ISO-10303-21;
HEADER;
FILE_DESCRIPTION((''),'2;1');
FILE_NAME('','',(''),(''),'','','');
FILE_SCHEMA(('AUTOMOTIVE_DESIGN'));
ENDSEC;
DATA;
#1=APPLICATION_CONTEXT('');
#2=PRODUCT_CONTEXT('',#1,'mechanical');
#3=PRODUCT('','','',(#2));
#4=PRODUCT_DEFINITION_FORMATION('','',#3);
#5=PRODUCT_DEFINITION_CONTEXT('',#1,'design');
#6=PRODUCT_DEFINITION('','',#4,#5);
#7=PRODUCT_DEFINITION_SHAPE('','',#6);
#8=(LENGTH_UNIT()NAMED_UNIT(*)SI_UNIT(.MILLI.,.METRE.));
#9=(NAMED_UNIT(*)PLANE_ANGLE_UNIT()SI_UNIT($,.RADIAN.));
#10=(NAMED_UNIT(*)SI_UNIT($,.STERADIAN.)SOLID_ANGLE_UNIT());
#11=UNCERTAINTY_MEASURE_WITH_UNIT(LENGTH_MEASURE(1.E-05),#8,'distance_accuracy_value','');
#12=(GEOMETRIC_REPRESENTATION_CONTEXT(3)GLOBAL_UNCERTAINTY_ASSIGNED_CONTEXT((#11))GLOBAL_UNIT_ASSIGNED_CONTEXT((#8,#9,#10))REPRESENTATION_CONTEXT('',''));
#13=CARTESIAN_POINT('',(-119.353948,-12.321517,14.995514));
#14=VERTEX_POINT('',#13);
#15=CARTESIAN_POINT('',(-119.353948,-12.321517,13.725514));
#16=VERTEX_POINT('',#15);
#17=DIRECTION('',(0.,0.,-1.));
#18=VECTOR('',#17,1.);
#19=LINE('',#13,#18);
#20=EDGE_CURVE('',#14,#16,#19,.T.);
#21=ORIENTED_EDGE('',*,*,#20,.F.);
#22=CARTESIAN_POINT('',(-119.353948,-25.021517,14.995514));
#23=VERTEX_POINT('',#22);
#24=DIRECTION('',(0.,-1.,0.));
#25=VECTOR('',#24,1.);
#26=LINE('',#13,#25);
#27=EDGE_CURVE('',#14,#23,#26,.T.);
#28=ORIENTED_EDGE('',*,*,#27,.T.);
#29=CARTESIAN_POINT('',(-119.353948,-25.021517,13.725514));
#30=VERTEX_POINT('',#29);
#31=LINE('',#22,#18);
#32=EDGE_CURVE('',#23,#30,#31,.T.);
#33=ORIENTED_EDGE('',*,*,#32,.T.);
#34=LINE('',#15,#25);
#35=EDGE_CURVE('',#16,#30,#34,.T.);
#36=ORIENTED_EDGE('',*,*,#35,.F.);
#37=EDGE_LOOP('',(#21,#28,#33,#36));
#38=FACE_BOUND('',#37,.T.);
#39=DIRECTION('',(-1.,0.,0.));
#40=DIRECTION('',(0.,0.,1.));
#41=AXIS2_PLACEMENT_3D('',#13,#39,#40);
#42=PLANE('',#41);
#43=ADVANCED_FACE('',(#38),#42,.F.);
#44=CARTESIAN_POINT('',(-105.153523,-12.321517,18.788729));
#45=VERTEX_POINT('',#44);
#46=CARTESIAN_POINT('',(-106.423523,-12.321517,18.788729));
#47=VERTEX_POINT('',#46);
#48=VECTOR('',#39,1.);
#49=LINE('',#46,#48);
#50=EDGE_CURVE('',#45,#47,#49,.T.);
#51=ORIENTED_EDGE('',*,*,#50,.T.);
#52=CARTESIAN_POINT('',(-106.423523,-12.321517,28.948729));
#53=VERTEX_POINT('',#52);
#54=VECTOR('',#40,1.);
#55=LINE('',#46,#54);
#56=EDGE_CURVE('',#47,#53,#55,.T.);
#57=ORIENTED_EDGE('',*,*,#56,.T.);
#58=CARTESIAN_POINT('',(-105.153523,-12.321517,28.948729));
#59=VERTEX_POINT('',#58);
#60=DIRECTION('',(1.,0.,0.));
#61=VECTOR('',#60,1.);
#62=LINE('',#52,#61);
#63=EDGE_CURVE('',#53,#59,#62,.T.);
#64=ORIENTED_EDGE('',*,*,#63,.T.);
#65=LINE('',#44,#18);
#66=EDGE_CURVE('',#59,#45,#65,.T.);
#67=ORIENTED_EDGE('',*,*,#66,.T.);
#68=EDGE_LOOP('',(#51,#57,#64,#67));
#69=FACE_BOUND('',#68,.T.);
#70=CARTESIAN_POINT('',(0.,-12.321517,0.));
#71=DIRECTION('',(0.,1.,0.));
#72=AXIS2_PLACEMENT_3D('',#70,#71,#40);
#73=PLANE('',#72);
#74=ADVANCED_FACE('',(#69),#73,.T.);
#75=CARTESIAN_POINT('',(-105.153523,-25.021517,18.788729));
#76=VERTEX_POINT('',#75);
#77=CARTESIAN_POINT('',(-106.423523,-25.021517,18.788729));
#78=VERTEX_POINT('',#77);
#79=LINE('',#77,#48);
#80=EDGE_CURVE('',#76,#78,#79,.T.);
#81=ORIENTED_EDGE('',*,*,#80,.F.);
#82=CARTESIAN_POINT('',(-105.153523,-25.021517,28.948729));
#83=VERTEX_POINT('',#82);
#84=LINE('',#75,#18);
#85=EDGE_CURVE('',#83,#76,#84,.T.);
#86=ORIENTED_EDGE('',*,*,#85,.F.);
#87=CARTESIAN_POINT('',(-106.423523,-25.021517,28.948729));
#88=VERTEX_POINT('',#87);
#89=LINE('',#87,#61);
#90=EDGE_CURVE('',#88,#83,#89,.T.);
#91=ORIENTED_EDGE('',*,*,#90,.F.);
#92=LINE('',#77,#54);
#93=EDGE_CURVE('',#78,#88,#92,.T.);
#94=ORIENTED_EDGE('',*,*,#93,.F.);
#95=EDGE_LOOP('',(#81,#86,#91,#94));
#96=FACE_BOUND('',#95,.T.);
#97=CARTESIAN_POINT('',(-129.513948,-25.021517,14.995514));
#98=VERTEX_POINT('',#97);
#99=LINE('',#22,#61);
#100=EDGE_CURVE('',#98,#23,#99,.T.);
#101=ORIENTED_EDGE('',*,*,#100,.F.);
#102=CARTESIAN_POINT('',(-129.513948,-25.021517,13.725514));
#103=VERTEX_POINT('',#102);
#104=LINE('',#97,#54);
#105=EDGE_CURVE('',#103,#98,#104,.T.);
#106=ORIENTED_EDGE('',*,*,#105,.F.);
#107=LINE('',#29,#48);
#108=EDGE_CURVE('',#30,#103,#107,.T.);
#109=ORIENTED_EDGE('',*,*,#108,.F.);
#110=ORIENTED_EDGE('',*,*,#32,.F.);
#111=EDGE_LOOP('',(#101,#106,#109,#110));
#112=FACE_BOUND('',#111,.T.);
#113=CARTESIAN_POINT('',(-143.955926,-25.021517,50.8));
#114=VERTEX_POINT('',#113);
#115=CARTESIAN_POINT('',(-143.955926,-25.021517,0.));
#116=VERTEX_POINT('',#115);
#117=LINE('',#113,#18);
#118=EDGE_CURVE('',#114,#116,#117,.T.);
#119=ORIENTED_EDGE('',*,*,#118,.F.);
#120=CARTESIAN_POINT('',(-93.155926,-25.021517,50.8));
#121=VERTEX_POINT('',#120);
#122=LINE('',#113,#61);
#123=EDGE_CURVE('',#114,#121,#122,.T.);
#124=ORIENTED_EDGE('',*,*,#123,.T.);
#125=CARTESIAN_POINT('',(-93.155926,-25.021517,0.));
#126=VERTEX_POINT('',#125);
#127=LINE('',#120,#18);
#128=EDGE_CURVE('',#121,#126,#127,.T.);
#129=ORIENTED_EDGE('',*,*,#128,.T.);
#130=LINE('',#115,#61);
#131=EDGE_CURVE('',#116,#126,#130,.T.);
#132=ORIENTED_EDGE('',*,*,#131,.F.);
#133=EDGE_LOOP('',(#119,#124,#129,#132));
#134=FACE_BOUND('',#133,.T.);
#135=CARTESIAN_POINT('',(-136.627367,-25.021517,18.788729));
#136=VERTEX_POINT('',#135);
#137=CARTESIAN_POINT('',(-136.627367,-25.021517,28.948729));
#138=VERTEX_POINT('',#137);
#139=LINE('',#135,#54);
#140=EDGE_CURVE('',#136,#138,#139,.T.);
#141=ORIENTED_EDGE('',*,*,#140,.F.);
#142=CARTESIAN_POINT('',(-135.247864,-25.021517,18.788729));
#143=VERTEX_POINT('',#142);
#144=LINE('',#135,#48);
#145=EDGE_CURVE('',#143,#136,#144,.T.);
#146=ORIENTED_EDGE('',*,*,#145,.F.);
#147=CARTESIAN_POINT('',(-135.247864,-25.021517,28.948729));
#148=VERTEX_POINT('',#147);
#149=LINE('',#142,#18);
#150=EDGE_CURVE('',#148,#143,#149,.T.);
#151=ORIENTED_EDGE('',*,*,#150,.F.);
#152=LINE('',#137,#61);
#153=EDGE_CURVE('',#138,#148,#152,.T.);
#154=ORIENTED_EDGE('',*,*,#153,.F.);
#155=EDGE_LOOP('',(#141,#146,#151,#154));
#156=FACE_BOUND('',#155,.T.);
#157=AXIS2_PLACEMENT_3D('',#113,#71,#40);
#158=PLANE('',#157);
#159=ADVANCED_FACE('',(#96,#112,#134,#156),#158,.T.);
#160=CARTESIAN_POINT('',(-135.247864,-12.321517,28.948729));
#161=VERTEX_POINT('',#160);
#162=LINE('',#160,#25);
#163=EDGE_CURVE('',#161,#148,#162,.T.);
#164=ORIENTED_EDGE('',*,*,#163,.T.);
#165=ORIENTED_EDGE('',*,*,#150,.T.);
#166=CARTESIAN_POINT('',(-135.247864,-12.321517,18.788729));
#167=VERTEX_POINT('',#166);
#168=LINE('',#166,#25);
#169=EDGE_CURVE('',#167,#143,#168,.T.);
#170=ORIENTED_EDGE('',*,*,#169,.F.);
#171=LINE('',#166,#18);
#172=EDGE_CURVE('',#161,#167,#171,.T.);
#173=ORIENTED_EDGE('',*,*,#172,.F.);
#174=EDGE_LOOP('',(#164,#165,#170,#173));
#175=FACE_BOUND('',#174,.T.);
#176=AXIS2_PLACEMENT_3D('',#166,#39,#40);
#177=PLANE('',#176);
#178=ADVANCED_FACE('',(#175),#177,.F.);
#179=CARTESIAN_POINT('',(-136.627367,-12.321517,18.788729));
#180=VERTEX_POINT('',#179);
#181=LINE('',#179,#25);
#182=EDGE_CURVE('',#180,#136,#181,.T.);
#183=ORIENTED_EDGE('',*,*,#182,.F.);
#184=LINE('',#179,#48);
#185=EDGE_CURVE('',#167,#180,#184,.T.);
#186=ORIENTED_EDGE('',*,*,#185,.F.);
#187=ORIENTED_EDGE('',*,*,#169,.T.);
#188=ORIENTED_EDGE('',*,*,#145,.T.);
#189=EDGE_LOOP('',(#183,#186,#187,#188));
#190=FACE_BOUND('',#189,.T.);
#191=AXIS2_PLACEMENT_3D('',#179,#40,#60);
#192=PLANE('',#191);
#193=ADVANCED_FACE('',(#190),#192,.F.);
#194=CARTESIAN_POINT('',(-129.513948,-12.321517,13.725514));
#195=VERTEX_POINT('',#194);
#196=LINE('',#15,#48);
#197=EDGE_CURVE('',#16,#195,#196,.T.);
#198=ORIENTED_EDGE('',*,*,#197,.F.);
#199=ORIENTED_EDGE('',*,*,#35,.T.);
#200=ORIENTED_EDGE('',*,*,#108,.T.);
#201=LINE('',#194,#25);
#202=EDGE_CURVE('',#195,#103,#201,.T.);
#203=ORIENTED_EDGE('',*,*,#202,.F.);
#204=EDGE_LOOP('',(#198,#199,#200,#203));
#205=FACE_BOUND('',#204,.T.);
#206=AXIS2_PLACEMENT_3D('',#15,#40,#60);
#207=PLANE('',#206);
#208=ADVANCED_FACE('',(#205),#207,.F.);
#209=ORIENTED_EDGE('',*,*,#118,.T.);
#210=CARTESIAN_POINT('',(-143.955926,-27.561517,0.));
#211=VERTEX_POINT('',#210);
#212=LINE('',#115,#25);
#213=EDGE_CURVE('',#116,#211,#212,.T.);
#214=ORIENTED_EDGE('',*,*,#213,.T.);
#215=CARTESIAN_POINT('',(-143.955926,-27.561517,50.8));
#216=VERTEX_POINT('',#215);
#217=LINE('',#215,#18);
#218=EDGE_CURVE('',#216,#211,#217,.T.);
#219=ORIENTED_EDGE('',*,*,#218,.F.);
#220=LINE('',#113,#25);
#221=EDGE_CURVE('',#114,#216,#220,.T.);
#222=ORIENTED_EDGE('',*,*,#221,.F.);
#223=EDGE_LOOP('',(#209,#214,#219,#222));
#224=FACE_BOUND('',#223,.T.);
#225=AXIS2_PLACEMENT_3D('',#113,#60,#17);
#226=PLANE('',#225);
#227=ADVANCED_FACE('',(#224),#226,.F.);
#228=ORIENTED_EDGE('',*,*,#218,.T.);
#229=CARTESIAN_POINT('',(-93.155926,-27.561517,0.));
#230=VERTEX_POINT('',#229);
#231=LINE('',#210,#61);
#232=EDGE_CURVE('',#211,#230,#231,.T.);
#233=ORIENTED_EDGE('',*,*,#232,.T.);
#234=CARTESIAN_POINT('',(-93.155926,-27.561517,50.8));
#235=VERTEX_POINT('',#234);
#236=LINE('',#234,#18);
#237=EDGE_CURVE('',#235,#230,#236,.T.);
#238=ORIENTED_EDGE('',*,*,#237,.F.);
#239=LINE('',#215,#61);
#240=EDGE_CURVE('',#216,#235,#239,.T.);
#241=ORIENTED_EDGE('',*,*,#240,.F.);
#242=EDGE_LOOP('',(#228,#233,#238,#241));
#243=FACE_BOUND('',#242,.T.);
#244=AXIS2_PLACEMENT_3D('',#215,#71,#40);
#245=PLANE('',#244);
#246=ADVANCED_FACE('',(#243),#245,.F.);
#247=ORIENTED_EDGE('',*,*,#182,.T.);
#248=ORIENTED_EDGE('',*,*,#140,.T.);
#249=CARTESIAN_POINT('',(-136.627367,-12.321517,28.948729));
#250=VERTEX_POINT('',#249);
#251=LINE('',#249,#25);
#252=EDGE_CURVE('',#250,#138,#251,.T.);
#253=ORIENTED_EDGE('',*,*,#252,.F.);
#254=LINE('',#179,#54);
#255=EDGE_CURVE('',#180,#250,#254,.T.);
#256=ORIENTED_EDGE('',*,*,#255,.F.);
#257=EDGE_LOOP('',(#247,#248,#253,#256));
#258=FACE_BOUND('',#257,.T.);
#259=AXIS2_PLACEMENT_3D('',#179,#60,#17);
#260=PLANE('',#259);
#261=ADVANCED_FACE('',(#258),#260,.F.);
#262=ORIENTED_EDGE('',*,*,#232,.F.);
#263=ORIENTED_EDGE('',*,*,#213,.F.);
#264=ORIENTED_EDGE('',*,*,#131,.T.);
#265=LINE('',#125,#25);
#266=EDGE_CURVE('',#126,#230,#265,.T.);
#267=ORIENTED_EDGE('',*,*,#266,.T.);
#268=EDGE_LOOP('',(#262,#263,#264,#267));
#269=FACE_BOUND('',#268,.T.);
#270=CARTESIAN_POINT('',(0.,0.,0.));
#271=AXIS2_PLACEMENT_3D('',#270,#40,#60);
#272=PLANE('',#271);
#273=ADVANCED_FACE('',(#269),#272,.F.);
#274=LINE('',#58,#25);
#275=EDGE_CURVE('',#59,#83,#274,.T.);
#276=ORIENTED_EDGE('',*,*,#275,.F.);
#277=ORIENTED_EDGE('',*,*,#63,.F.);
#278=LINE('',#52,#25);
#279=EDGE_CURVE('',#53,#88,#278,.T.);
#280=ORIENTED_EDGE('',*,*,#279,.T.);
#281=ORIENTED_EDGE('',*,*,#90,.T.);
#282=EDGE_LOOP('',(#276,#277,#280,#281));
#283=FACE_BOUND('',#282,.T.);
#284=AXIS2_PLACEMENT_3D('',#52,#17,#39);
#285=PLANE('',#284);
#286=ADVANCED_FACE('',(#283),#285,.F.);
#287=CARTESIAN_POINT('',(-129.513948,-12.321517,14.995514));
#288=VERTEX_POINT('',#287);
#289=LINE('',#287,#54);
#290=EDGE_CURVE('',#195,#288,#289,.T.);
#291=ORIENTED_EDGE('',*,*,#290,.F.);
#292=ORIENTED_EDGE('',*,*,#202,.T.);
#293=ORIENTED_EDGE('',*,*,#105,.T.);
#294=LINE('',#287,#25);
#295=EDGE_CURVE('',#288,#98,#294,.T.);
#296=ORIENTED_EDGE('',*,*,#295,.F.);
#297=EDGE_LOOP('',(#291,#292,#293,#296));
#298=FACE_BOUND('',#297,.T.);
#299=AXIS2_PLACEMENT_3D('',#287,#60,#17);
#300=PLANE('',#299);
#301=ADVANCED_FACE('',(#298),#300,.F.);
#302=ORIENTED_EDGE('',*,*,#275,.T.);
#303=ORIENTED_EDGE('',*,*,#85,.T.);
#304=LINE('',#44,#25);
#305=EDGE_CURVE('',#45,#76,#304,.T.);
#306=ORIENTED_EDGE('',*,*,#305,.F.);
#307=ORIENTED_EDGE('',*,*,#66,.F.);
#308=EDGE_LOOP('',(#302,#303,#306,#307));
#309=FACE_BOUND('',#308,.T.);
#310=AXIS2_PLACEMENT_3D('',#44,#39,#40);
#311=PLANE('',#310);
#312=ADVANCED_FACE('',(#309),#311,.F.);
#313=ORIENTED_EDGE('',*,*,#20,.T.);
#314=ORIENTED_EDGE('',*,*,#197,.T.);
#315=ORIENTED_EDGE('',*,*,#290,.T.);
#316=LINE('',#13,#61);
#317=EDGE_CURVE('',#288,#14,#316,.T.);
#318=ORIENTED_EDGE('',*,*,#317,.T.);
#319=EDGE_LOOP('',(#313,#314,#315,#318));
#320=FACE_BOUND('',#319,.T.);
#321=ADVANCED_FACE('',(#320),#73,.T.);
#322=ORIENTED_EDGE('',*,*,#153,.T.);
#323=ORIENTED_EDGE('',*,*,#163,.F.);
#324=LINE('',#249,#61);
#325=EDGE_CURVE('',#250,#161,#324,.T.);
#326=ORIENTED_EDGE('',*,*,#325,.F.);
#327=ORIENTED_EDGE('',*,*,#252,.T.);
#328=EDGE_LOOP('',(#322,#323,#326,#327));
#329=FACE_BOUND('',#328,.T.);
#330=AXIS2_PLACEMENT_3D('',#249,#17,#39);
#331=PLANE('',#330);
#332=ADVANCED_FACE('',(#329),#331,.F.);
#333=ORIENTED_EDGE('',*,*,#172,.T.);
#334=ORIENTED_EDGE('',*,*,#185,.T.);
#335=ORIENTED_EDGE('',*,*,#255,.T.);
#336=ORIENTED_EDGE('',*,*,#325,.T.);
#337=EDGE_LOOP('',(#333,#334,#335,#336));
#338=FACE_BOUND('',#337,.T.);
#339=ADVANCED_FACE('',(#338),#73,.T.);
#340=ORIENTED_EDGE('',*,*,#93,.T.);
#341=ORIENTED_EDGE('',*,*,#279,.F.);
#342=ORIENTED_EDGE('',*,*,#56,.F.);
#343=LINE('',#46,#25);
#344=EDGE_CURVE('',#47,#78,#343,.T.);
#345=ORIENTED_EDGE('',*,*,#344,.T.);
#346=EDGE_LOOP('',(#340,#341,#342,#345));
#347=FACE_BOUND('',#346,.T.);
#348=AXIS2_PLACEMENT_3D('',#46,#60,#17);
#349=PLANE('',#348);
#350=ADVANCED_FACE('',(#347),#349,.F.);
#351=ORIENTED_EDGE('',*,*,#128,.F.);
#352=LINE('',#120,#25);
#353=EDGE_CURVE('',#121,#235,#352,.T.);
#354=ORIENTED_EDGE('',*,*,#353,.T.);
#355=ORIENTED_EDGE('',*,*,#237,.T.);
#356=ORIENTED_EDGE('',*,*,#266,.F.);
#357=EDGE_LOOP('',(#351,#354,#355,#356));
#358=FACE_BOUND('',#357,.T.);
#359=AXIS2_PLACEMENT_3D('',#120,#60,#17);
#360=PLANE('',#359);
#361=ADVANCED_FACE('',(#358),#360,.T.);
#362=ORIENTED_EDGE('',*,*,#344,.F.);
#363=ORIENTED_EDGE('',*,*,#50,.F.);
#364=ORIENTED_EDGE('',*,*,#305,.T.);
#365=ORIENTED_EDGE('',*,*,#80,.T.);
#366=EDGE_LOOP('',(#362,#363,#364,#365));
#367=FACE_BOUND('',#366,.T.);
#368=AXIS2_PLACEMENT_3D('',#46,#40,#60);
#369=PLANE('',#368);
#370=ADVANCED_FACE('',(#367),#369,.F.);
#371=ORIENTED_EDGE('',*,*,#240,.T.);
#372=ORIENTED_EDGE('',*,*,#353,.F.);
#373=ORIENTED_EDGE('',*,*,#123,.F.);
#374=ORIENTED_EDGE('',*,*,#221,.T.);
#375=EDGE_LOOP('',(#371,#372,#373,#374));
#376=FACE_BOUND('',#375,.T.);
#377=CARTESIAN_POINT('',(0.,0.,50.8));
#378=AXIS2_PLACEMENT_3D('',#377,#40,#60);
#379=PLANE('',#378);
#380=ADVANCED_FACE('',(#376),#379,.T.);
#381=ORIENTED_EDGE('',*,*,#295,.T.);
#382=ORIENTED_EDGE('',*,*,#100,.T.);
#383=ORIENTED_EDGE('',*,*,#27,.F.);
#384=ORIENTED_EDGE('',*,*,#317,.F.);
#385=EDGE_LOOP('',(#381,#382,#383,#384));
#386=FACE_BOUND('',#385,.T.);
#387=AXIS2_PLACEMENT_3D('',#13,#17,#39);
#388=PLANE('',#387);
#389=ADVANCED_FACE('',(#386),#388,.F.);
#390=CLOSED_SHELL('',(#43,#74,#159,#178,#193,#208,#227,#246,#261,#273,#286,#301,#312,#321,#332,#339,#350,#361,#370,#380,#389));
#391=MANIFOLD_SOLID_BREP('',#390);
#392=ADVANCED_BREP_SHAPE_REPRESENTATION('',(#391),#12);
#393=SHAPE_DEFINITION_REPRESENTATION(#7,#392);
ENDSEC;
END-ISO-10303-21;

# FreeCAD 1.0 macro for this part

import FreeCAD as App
import Part
import Sketcher
from FreeCAD import Vector
Q = App.Units.Quantity

doc = App.newDocument("Part")
body = doc.addObject("PartDesign::Body", "Body")

# Sketch on XY plane
sketch1 = doc.addObject("Sketcher::SketchObject", "Sketch")
body.addObject(sketch1)
sketch1.AttachmentSupport = (doc.XY_Plane, [""])
sketch1.MapMode = "FlatFace"
sketch1.addGeometry([
    Part.LineSegment(Vector(-144, -25, 0), Vector(-144, -27.6, 0)),
    Part.LineSegment(Vector(-144, -27.6, 0), Vector(-93.2, -27.6, 0)),
    Part.LineSegment(Vector(-93.2, -27.6, 0), Vector(-93.2, -25, 0)),
    Part.LineSegment(Vector(-93.2, -25, 0), Vector(-144, -25, 0)),
], False)
sketch1.addConstraint([
    Sketcher.Constraint("Coincident", 0, 2, 1, 1),
    Sketcher.Constraint("Coincident", 1, 2, 2, 1),
    Sketcher.Constraint("Coincident", 2, 2, 3, 1),
    Sketcher.Constraint("Coincident", 3, 2, 0, 1),
    Sketcher.Constraint("Vertical", 0),
    Sketcher.Constraint("Horizontal", 1),
    Sketcher.Constraint("Vertical", 2),
    Sketcher.Constraint("Horizontal", 3),
    Sketcher.Constraint("DistanceX", 1, 1, 1, 2, Q("2 in")),
    Sketcher.Constraint("DistanceY", 0, 2, 0, 1, Q("0.1 in")),
    Sketcher.Constraint("DistanceX", 0, 2, -1, 1, 143.955926),
    Sketcher.Constraint("DistanceY", 0, 2, -1, 1, 27.561517),
])
pad1 = doc.addObject("PartDesign::Pad", "Pad")
body.addObject(pad1)
pad1.Profile = sketch1
pad1.Length = Q("2 in")

# Sketch on XZ plane
sketch2 = doc.addObject("Sketcher::SketchObject", "Sketch001")
body.addObject(sketch2)
sketch2.AttachmentSupport = (doc.XZ_Plane, [""])
sketch2.MapMode = "FlatFace"
sketch2.AttachmentOffset = App.Placement(Vector(0, 0, 25.021517), App.Rotation())
sketch2.addGeometry([
    Part.LineSegment(Vector(-129.5, 13.7, 0), Vector(-129.5, 15, 0)),  # 0
    Part.LineSegment(Vector(-129.5, 15, 0), Vector(-119.4, 15, 0)),  # 1
    Part.LineSegment(Vector(-119.4, 15, 0), Vector(-119.4, 13.7, 0)),  # 2
    Part.LineSegment(Vector(-119.4, 13.7, 0), Vector(-129.5, 13.7, 0)),  # 3
    Part.LineSegment(Vector(-106.4, 18.8, 0), Vector(-106.4, 28.9, 0)),  # 4
    Part.LineSegment(Vector(-106.4, 28.9, 0), Vector(-105.2, 28.9, 0)),  # 5
    Part.LineSegment(Vector(-105.2, 28.9, 0), Vector(-105.2, 18.8, 0)),  # 6
    Part.LineSegment(Vector(-105.2, 18.8, 0), Vector(-106.4, 18.8, 0)),  # 7
    Part.LineSegment(Vector(-136.6, 18.8, 0), Vector(-136.6, 28.9, 0)),  # 8
    Part.LineSegment(Vector(-136.6, 28.9, 0), Vector(-135.2, 28.9, 0)),  # 9
    Part.LineSegment(Vector(-135.2, 28.9, 0), Vector(-135.2, 18.8, 0)),  # 10
    Part.LineSegment(Vector(-135.2, 18.8, 0), Vector(-136.6, 18.8, 0)),  # 11
], False)
sketch2.addConstraint([
    Sketcher.Constraint("Coincident", 0, 2, 1, 1),
    Sketcher.Constraint("Coincident", 1, 2, 2, 1),
    Sketcher.Constraint("Coincident", 2, 2, 3, 1),
    Sketcher.Constraint("Coincident", 3, 2, 0, 1),
    Sketcher.Constraint("Coincident", 4, 2, 5, 1),
    Sketcher.Constraint("Coincident", 5, 2, 6, 1),
    Sketcher.Constraint("Coincident", 6, 2, 7, 1),
    Sketcher.Constraint("Coincident", 7, 2, 4, 1),
    Sketcher.Constraint("Coincident", 8, 2, 9, 1),
    Sketcher.Constraint("Coincident", 9, 2, 10, 1),
    Sketcher.Constraint("Coincident", 10, 2, 11, 1),
    Sketcher.Constraint("Coincident", 11, 2, 8, 1),
    Sketcher.Constraint("Vertical", 0),
    Sketcher.Constraint("Horizontal", 1),
    Sketcher.Constraint("Vertical", 2),
    Sketcher.Constraint("Horizontal", 3),
    Sketcher.Constraint("Vertical", 4),
    Sketcher.Constraint("Horizontal", 5),
    Sketcher.Constraint("Vertical", 6),
    Sketcher.Constraint("Horizontal", 7),
    Sketcher.Constraint("Vertical", 8),
    Sketcher.Constraint("Horizontal", 9),
    Sketcher.Constraint("Vertical", 10),
    Sketcher.Constraint("Horizontal", 11),
    Sketcher.Constraint("Horizontal", 5, 2, 8, 2),
    Sketcher.Constraint("Horizontal", 7, 2, 10, 2),
    Sketcher.Constraint("Equal", 7, 0),
    Sketcher.Constraint("Equal", 3, 4),
    Sketcher.Constraint("DistanceX", 1, 1, 1, 2, Q("0.4 in")),
    Sketcher.Constraint("DistanceX", 5, 1, 5, 2, Q("0.05 in")),
    Sketcher.Constraint("DistanceX", 9, 1, 9, 2, 1.379502),
    Sketcher.Constraint("DistanceX", 0, 2, -1, 1, 129.513948),
    Sketcher.Constraint("DistanceY", -1, 1, 4, 2, 28.948729),
    Sketcher.Constraint("DistanceX", 8, 2, 0, 2, 7.113419),
    Sketcher.Constraint("DistanceY", -1, 1, 0, 2, 14.995514),
    Sketcher.Constraint("DistanceX", 4, 2, -1, 1, 106.423523),
])
pad2 = doc.addObject("PartDesign::Pad", "Pad001")
body.addObject(pad2)
pad2.Profile = sketch2
pad2.Length = Q("0.5 in")
pad2.Reversed = True

doc.recompute()
